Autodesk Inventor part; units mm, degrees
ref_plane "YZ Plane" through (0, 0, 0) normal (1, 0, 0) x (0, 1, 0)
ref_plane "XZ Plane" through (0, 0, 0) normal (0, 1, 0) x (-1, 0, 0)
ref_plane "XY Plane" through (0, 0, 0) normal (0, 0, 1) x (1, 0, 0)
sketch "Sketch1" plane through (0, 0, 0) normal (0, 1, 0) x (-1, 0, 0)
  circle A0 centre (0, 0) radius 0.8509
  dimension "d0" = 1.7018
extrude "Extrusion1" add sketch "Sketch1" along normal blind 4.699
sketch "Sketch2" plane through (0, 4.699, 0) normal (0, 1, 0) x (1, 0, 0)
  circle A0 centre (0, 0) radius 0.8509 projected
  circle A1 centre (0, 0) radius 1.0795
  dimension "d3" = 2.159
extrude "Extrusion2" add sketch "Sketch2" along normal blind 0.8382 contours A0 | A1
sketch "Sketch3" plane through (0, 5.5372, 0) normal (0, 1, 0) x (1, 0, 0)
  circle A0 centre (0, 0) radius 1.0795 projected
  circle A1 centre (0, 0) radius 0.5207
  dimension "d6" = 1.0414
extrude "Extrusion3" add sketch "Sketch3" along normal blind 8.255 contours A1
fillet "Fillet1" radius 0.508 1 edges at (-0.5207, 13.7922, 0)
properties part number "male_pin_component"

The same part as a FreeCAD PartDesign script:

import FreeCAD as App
import Part
import Sketcher
Q = App.Units.Quantity


def edges_at(feature, points):
    """Names of the edges that pass closest to the given points."""
    edges = feature.Shape.Edges
    near = lambda p: min(range(len(edges)), key=lambda i: edges[i].distToShape(Part.Vertex(*p))[0])
    return sorted({f"Edge{near(p) + 1}" for p in points})

doc = App.newDocument("Part")
body = doc.addObject("PartDesign::Body", "Body")

sketch1 = body.newObject("Sketcher::SketchObject", "Sketch")
sketch1.AttachmentSupport = (doc.getObject("XZ_Plane"), [""])
sketch1.MapMode = "FlatFace"
sketch1.addGeometry(Part.Circle(App.Vector(0, 0, 0), App.Vector(0, 0, 1), 0.9), False)
sketch1.addConstraint([
    Sketcher.Constraint("Coincident", 0, 3, -1, 1),
    Sketcher.Constraint("Diameter", 0, Q("0.067 in")),
])
pad1 = body.newObject("PartDesign::Pad", "Pad")
pad1.Profile = sketch1
pad1.Length = Q("0.185 in")
pad1.Reversed = True

sketch2 = body.newObject("Sketcher::SketchObject", "Sketch001")
sketch2.AttachmentSupport = (doc.getObject("XZ_Plane"), [""])
sketch2.MapMode = "FlatFace"
sketch2.AttachmentOffset = App.Placement(App.Vector(0, 0, -0.185 * 25.4), App.Rotation())
sketch2.addGeometry(Part.Circle(App.Vector(0, 0, 0), App.Vector(0, 0, 1), 1.1), False)
sketch2.addConstraint([
    Sketcher.Constraint("Coincident", 0, 3, -1, 1),
    Sketcher.Constraint("Diameter", 0, Q("0.085 in")),
])
pad2 = body.newObject("PartDesign::Pad", "Pad001")
pad2.Profile = sketch2
pad2.Length = Q("0.033 in")
pad2.Reversed = True

sketch3 = body.newObject("Sketcher::SketchObject", "Sketch002")
sketch3.AttachmentSupport = (doc.getObject("XZ_Plane"), [""])
sketch3.MapMode = "FlatFace"
sketch3.AttachmentOffset = App.Placement(App.Vector(0, 0, -0.218 * 25.4), App.Rotation())
sketch3.addGeometry(Part.Circle(App.Vector(0, 0, 0), App.Vector(0, 0, 1), 0.5), False)
sketch3.addConstraint([
    Sketcher.Constraint("Coincident", 0, 3, -1, 1),
    Sketcher.Constraint("Diameter", 0, Q("0.041 in")),
])
pad3 = body.newObject("PartDesign::Pad", "Pad002")
pad3.Profile = sketch3
pad3.Length = Q("0.325 in")
pad3.Reversed = True
doc.recompute()

fillet = body.newObject("PartDesign::Fillet", "Fillet")
fillet.Base = (pad3, edges_at(pad3, [(-0.521, 13.792, 0)]))
fillet.Radius = Q("0.02 in")

doc.recompute()
